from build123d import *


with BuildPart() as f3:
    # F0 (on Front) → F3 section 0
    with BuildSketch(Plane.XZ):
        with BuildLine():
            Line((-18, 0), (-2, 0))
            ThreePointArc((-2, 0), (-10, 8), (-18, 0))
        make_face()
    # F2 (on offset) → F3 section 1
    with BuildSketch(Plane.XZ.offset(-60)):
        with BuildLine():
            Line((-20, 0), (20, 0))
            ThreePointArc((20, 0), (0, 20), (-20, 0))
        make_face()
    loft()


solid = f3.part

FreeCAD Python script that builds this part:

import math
import FreeCAD as App
import Part
import Sketcher

V = App.Vector
Q = App.Units.Quantity

doc = App.newDocument("Part")
body = doc.addObject("PartDesign::Body", "Body")

# Sketch on XZ plane
sketch1 = doc.addObject("Sketcher::SketchObject", "Sketch")
body.addObject(sketch1)
sketch1.AttachmentSupport = (doc.XZ_Plane, [""])
sketch1.MapMode = "FlatFace"
sketch1.addGeometry([
    Part.LineSegment(V(-18, 0, 0), V(-2, 0, 0)),
    Part.ArcOfCircle(Part.Circle(V(-10, 0, 0), V(0, 0, 1), 8), math.radians(0), math.radians(180)),
], False)
sketch1.addConstraint([
    Sketcher.Constraint("Coincident", 0, 1, 1, 2),
    Sketcher.Constraint("Coincident", 1, 1, 0, 2),
    Sketcher.Constraint("Horizontal", 0),
    Sketcher.Constraint("PointOnObject", 1, 3, -1),
    Sketcher.Constraint("PointOnObject", 0, 1, -1),
    Sketcher.Constraint("Radius", 1, Q("8 mm")),
    Sketcher.Constraint("DistanceX", 1, 3, -1, 1, Q("10 mm")),
])

# Sketch on XZ plane
sketch2 = doc.addObject("Sketcher::SketchObject", "Sketch001")
body.addObject(sketch2)
sketch2.AttachmentSupport = (doc.XZ_Plane, [""])
sketch2.MapMode = "FlatFace"
sketch2.AttachmentOffset = App.Placement(V(0, 0, -60), App.Rotation())
sketch2.addGeometry([
    Part.LineSegment(V(-20, 0, 0), V(20, 0, 0)),
    Part.ArcOfCircle(Part.Circle(V(0, 0, 0), V(0, 0, 1), 20), math.radians(0), math.radians(180)),
], False)
sketch2.addConstraint([
    Sketcher.Constraint("Coincident", 0, 1, 1, 2),
    Sketcher.Constraint("Coincident", 1, 1, 0, 2),
    Sketcher.Constraint("Horizontal", 0),
    Sketcher.Constraint("Coincident", 1, 3, -1, 1),
    Sketcher.Constraint("PointOnObject", 0, 1, -1),
    Sketcher.Constraint("Radius", 1, Q("20 mm")),
])

additiveloft = doc.addObject("PartDesign::AdditiveLoft", "AdditiveLoft")
body.addObject(additiveloft)
additiveloft.Profile = sketch1
additiveloft.Sections = [sketch2]

doc.recompute()
